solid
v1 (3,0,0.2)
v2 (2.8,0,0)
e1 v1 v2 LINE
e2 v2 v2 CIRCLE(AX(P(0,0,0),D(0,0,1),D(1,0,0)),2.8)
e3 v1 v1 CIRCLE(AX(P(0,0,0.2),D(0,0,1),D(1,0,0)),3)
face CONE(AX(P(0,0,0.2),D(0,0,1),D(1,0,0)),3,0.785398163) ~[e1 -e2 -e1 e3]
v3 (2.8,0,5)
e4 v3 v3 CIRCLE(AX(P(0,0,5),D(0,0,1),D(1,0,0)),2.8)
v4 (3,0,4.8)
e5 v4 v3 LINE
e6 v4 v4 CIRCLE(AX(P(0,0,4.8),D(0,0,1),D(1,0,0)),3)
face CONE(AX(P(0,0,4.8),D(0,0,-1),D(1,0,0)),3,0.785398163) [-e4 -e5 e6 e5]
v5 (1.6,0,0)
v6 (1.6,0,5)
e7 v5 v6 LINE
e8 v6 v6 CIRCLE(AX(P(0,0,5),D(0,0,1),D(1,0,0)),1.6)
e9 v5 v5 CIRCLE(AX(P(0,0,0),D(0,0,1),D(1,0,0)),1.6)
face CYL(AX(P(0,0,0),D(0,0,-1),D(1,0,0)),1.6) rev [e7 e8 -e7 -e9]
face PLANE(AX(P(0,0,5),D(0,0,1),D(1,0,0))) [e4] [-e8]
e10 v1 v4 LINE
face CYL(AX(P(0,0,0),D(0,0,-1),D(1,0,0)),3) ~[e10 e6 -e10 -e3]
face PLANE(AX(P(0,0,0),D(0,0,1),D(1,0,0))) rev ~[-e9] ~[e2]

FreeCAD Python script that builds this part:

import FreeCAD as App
import Part
import Sketcher


def edges_at(feature, points):
    """Names of the edges that pass closest to the given points."""
    edges = feature.Shape.Edges
    near = lambda p: min(range(len(edges)), key=lambda i: edges[i].distToShape(Part.Vertex(*p))[0])
    return sorted({f"Edge{near(p) + 1}" for p in points})

doc = App.newDocument("Part")
params = doc.addObject("Spreadsheet::Sheet", "Params")
for row, (alias, value) in enumerate([
    ("sketch1_diameter", "6 mm"),
    ("sketch1_diameter2", "3.2 mm"),
    ("pad1_length", "5 mm"),
    ("chamfer_size", "0.2 mm"),
], start=1):
    params.set(f"A{row}", alias)
    params.set(f"B{row}", "=" + value)
    params.setAlias(f"B{row}", alias)

body = doc.addObject("PartDesign::Body", "Body")

sketch1 = body.newObject("Sketcher::SketchObject", "Sketch")
sketch1.AttachmentSupport = (doc.getObject("XY_Plane"), [""])
sketch1.MapMode = "FlatFace"
sketch1.addGeometry([
    Part.Circle(App.Vector(0, 0, 0), App.Vector(0, 0, 1), 3),
    Part.Circle(App.Vector(0, 0, 0), App.Vector(0, 0, 1), 1.6),
], False)
sketch1.addConstraint([
    Sketcher.Constraint("Coincident", 0, 3, -1, 1),
    Sketcher.Constraint("Coincident", 1, 3, -1, 1),
    Sketcher.Constraint("Diameter", 0, 6.0),
    Sketcher.Constraint("Diameter", 1, 3.2),
])
sketch1.setExpression("Constraints[2]", "Params.sketch1_diameter")
sketch1.setExpression("Constraints[3]", "Params.sketch1_diameter2")
pad1 = body.newObject("PartDesign::Pad", "Pad")
pad1.Profile = sketch1
pad1.setExpression("Length", "Params.pad1_length")
doc.recompute()

chamfer = body.newObject("PartDesign::Chamfer", "Chamfer")
chamfer.Base = (pad1, edges_at(pad1, [(-3, 0, 5), (-3, 0, 0)]))
chamfer.setExpression("Size", "Params.chamfer_size")

doc.recompute()
